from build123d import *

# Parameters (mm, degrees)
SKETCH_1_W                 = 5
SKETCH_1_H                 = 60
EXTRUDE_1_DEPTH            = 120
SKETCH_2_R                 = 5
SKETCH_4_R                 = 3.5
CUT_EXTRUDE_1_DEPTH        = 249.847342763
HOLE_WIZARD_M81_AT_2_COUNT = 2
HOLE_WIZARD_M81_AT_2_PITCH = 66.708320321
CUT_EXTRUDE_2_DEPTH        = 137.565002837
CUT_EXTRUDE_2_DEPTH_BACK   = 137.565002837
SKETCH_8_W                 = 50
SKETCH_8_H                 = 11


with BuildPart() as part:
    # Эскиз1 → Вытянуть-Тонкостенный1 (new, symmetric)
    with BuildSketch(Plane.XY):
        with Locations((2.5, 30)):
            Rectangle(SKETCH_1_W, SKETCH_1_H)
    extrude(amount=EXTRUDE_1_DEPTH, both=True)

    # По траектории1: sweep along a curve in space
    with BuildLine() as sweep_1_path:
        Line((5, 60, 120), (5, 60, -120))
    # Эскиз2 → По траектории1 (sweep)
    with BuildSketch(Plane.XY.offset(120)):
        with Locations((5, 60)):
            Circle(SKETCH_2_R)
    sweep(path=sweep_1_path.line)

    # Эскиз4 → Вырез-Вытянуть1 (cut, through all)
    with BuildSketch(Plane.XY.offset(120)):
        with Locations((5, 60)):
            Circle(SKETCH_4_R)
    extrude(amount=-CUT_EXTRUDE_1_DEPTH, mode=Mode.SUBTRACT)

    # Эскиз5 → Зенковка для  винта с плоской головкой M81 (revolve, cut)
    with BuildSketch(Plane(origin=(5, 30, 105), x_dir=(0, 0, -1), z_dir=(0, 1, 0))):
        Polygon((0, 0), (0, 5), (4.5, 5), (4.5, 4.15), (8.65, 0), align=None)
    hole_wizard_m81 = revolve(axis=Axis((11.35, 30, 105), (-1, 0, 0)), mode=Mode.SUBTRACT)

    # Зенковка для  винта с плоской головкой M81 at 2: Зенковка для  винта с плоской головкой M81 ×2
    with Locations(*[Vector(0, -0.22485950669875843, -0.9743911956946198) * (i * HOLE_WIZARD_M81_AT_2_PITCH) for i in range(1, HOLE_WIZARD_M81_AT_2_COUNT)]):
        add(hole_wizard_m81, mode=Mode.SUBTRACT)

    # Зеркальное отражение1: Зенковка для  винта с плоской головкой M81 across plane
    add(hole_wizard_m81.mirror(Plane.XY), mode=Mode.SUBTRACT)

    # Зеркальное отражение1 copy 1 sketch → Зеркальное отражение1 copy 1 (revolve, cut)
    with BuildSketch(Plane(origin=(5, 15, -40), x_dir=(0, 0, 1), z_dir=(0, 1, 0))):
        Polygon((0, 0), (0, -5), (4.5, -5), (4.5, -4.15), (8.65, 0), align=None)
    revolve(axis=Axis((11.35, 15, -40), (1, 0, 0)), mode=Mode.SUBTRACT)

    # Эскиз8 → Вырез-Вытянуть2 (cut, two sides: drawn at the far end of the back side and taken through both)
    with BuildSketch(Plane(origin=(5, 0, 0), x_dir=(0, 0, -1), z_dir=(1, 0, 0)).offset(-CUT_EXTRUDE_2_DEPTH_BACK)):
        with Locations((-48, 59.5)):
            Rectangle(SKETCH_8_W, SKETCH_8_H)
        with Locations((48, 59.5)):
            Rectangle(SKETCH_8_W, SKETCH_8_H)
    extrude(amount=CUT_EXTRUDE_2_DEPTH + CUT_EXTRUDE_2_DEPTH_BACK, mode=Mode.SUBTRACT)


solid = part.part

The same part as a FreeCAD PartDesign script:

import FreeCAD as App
import Part
import Sketcher
Q = App.Units.Quantity


def add_polygon(sketch, points):
    """Adds a closed chain of lines whose ends are joined by coincident constraints."""
    first, n = sketch.GeometryCount, len(points)
    for a, b in zip(points, points[1:] + points[:1]):
        sketch.addGeometry(Part.LineSegment(App.Vector(*a, 0), App.Vector(*b, 0)), False)
    for i in range(n):
        sketch.addConstraint(Sketcher.Constraint("Coincident", first + i, 2, first + (i + 1) % n, 1))

doc = App.newDocument("Part")
body = doc.addObject("PartDesign::Body", "Body")

# Sketch on XY plane
sketch1 = body.newObject("Sketcher::SketchObject", "Sketch")
sketch1.AttachmentSupport = (doc.getObject("XY_Plane"), [""])
sketch1.MapMode = "FlatFace"
add_polygon(sketch1, [(0, 60), (0, 0), (5, 0), (5, 60)])  # lines 0-3
sketch1.addConstraint(Sketcher.Constraint("Vertical", 0))
sketch1.addConstraint(Sketcher.Constraint("Horizontal", 1))
sketch1.addConstraint(Sketcher.Constraint("Vertical", 2))
sketch1.addConstraint(Sketcher.Constraint("Horizontal", 3))
sketch1.addConstraint(Sketcher.Constraint("Coincident", 0, 2, -1, 1))
sketch1.addConstraint(Sketcher.Constraint("DistanceX", 1, 1, 1, 2, Q("5 mm")))
sketch1.addConstraint(Sketcher.Constraint("DistanceY", 0, 2, 0, 1, Q("60 mm")))
pad1 = body.newObject("PartDesign::Pad", "Pad")
pad1.Profile = sketch1
pad1.Length = 240
pad1.Midplane = True

# Sketch on XY plane
sketch2 = body.newObject("Sketcher::SketchObject", "Sketch001")
sketch2.AttachmentSupport = (doc.getObject("XY_Plane"), [""])
sketch2.MapMode = "FlatFace"
sketch2.AttachmentOffset = App.Placement(App.Vector(0, 0, 120), App.Rotation())
sketch2.addGeometry(Part.Circle(App.Vector(5, 60, 0), App.Vector(0, 0, 1), 5), False)
sketch2.addConstraint(Sketcher.Constraint("Diameter", 0, Q("10 mm")))
sketch2.addConstraint(Sketcher.Constraint("DistanceX", -1, 1, 0, 3, Q("5 mm")))
sketch2.addConstraint(Sketcher.Constraint("DistanceY", -1, 1, 0, 3, Q("60 mm")))

# Sketch on XZ plane
sketch3 = body.newObject("Sketcher::SketchObject", "Sketch002")
sketch3.AttachmentSupport = (doc.getObject("XZ_Plane"), [""])
sketch3.MapMode = "FlatFace"
sketch3.AttachmentOffset = App.Placement(App.Vector(0, 0, -60), App.Rotation())
sketch3.addGeometry(Part.LineSegment(App.Vector(5, 120, 0), App.Vector(5, -120, 0)), False)
sketch3.addConstraint(Sketcher.Constraint("Vertical", 0))
sketch3.addConstraint(Sketcher.Constraint("DistanceY", 0, 2, 0, 1, Q("240 mm")))
sketch3.addConstraint(Sketcher.Constraint("DistanceX", -1, 1, 0, 1, Q("5 mm")))
sketch3.addConstraint(Sketcher.Constraint("DistanceY", -1, 1, 0, 1, Q("120 mm")))
doc.recompute()

additivepipe = body.newObject("PartDesign::AdditivePipe", "AdditivePipe")
additivepipe.Profile = sketch2
additivepipe.Spine = (sketch3, ["Edge1"])

# Sketch on XY plane
sketch4 = body.newObject("Sketcher::SketchObject", "Sketch003")
sketch4.AttachmentSupport = (doc.getObject("XY_Plane"), [""])
sketch4.MapMode = "FlatFace"
sketch4.AttachmentOffset = App.Placement(App.Vector(0, 0, 120), App.Rotation())
sketch4.addGeometry(Part.Circle(App.Vector(5, 60, 0), App.Vector(0, 0, 1), 3.5), False)
sketch4.addConstraint(Sketcher.Constraint("Diameter", 0, Q("7 mm")))
sketch4.addConstraint(Sketcher.Constraint("DistanceX", -1, 1, 0, 3, Q("5 mm")))
sketch4.addConstraint(Sketcher.Constraint("DistanceY", -1, 1, 0, 3, Q("60 mm")))
pocket1 = body.newObject("PartDesign::Pocket", "Pocket")
pocket1.Profile = sketch4
pocket1.Type = "ThroughAll"

# Sketch on XZ plane
sketch5 = body.newObject("Sketcher::SketchObject", "Sketch004")
sketch5.AttachmentSupport = (doc.getObject("XZ_Plane"), [""])
sketch5.MapMode = "FlatFace"
sketch5.AttachmentOffset = App.Placement(App.Vector(0, 0, -30), App.Rotation())
add_polygon(sketch5, [(0, 105), (5, 105), (5, 96.3), (0.8, 100.5), (0, 100.5)])  # lines 0-4
sketch5.addGeometry(Part.LineSegment(App.Vector(5, 105, 0), App.Vector(0, 105, 0)), True)  # axis
sketch5.addConstraint(Sketcher.Constraint("Horizontal", 0))
sketch5.addConstraint(Sketcher.Constraint("Vertical", 1))
sketch5.addConstraint(Sketcher.Constraint("Horizontal", 3))
sketch5.addConstraint(Sketcher.Constraint("Vertical", 4))
sketch5.addConstraint(Sketcher.Constraint("Horizontal", 5))
sketch5.addConstraint(Sketcher.Constraint("Coincident", 5, 1, 0, 2))
sketch5.addConstraint(Sketcher.Constraint("PointOnObject", 3, 2, -2))
sketch5.addConstraint(Sketcher.Constraint("PointOnObject", 5, 2, -2))
sketch5.addConstraint(Sketcher.Constraint("DistanceX", 0, 1, 0, 2, Q("5 mm")))
sketch5.addConstraint(Sketcher.Constraint("Angle", 2, Q("135 deg")))
sketch5.addConstraint(Sketcher.Constraint("DistanceY", 4, 1, 4, 2, Q("4.5 mm")))
sketch5.addConstraint(Sketcher.Constraint("DistanceY", -1, 1, 0, 2, Q("105 mm")))
sketch5.addConstraint(Sketcher.Constraint("DistanceX", 3, 2, 3, 1, Q("0.85 mm")))
groove = body.newObject("PartDesign::Groove", "Groove")
groove.Profile = sketch5
groove.ReferenceAxis = (sketch5, ["Axis0"])
groove.Angle = 360
doc.recompute()

datumline = body.newObject("PartDesign::Line", "DatumLine")
datumline.Placement = App.Placement(App.Vector(0, 0, 0), App.Rotation(App.Vector(0, 0, 1), App.Vector(0, -0.224859507, -0.974391196)))
linearpattern = body.newObject("PartDesign::LinearPattern", "LinearPattern")
linearpattern.Originals = [groove]
linearpattern.Direction = (datumline, [""])
linearpattern.Mode = "offset"
linearpattern.Offset = 66.70832
linearpattern.Occurrences = 2
body.Tip = linearpattern
doc.recompute()

mirrored = body.newObject("PartDesign::Mirrored", "Mirrored")
mirrored.Originals = [groove]
mirrored.MirrorPlane = (doc.getObject("XY_Plane"), [""])
body.Tip = mirrored

# Sketch on XZ plane
sketch6 = body.newObject("Sketcher::SketchObject", "Sketch005")
sketch6.AttachmentSupport = (doc.getObject("XZ_Plane"), [""])
sketch6.MapMode = "FlatFace"
sketch6.AttachmentOffset = App.Placement(App.Vector(0, 0, -15), App.Rotation())
add_polygon(sketch6, [(5, -40), (0, -40), (0, -35.5), (0.8, -35.5), (5, -31.4)])  # lines 0-4
sketch6.addGeometry(Part.LineSegment(App.Vector(0, -40, 0), App.Vector(5, -40, 0)), True)  # axis
sketch6.addConstraint(Sketcher.Constraint("Horizontal", 0))
sketch6.addConstraint(Sketcher.Constraint("Vertical", 1))
sketch6.addConstraint(Sketcher.Constraint("Horizontal", 2))
sketch6.addConstraint(Sketcher.Constraint("Vertical", 4))
sketch6.addConstraint(Sketcher.Constraint("Horizontal", 5))
sketch6.addConstraint(Sketcher.Constraint("Coincident", 5, 1, 0, 2))
sketch6.addConstraint(Sketcher.Constraint("PointOnObject", 0, 2, -2))
sketch6.addConstraint(Sketcher.Constraint("Vertical", 3, 2, 5, 2))
sketch6.addConstraint(Sketcher.Constraint("DistanceX", 0, 2, 0, 1, Q("5 mm")))
sketch6.addConstraint(Sketcher.Constraint("Angle", 3, Q("45 deg")))
sketch6.addConstraint(Sketcher.Constraint("DistanceY", 1, 1, 1, 2, Q("4.5 mm")))
sketch6.addConstraint(Sketcher.Constraint("DistanceY", 0, 2, -1, 1, Q("40 mm")))
sketch6.addConstraint(Sketcher.Constraint("DistanceX", 2, 1, 2, 2, Q("0.85 mm")))
groove2 = body.newObject("PartDesign::Groove", "Groove001")
groove2.Profile = sketch6
groove2.ReferenceAxis = (sketch6, ["Axis0"])
groove2.Angle = 360

# Sketch on YZ plane
sketch7 = body.newObject("Sketcher::SketchObject", "Sketch006")
sketch7.AttachmentSupport = (doc.getObject("YZ_Plane"), [""])
sketch7.MapMode = "FlatFace"
sketch7.AttachmentOffset = App.Placement(App.Vector(0, 0, 5), App.Rotation())
add_polygon(sketch7, [(65, 73), (54, 73), (54, 23), (65, 23)])  # lines 0-3
add_polygon(sketch7, [(65, -23), (54, -23), (54, -73), (65, -73)])  # lines 4-7
sketch7.addConstraint(Sketcher.Constraint("Horizontal", 0))
sketch7.addConstraint(Sketcher.Constraint("Vertical", 1))
sketch7.addConstraint(Sketcher.Constraint("Horizontal", 2))
sketch7.addConstraint(Sketcher.Constraint("Vertical", 3))
sketch7.addConstraint(Sketcher.Constraint("Horizontal", 4))
sketch7.addConstraint(Sketcher.Constraint("Vertical", 5))
sketch7.addConstraint(Sketcher.Constraint("Horizontal", 6))
sketch7.addConstraint(Sketcher.Constraint("Vertical", 7))
sketch7.addConstraint(Sketcher.Constraint("Symmetric", 1, 2, 4, 2, -1))
sketch7.addConstraint(Sketcher.Constraint("Symmetric", 3, 2, 6, 2, -1))
sketch7.addConstraint(Sketcher.Constraint("DistanceX", 0, 2, 0, 1, Q("11 mm")))
sketch7.addConstraint(Sketcher.Constraint("DistanceY", 1, 2, 1, 1, Q("50 mm")))
sketch7.addConstraint(Sketcher.Constraint("DistanceX", -1, 1, 0, 2, Q("54 mm")))
sketch7.addConstraint(Sketcher.Constraint("DistanceY", -1, 1, 0, 2, Q("73 mm")))
pocket2 = body.newObject("PartDesign::Pocket", "Pocket001")
pocket2.Profile = sketch7
pocket2.Type = "ThroughAll"
pocket2.Midplane = True

doc.recompute()
